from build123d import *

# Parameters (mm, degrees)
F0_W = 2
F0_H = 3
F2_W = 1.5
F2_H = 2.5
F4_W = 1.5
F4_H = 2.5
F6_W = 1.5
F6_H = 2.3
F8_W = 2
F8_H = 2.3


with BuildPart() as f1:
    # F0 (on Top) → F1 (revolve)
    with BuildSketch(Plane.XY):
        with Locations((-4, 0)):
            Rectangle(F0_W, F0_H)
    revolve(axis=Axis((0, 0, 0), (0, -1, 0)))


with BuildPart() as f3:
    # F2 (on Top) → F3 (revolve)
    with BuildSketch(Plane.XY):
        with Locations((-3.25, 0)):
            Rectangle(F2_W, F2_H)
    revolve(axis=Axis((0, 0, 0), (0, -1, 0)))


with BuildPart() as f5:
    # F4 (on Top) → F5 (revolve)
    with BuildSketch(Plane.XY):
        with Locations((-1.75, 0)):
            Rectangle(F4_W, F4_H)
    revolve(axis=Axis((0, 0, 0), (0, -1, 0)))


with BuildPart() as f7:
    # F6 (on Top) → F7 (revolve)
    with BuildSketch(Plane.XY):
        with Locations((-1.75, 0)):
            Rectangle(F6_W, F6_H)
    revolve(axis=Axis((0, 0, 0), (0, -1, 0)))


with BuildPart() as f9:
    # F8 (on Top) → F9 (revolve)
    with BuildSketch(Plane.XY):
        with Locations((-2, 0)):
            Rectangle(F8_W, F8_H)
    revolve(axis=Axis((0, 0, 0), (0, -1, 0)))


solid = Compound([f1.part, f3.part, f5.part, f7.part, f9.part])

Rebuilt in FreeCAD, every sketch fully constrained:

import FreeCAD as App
import Part
import Sketcher

V = App.Vector

doc = App.newDocument("Part")
body = doc.addObject("PartDesign::Body", "Body")

# Sketch on XY plane
sketch1 = body.newObject("Sketcher::SketchObject", "Sketch")
sketch1.AttachmentSupport = (doc.getObject("XY_Plane"), [""])
sketch1.MapMode = "FlatFace"
sketch1.addGeometry(Part.LineSegment(V(-5, 1.5, 0), V(-5, -1.5, 0)), False)
sketch1.addGeometry(Part.LineSegment(V(-5, -1.5, 0), V(-3, -1.5, 0)), False)
sketch1.addGeometry(Part.LineSegment(V(-3, -1.5, 0), V(-3, 1.5, 0)), False)
sketch1.addGeometry(Part.LineSegment(V(-3, 1.5, 0), V(-5, 1.5, 0)), False)
sketch1.addConstraint(Sketcher.Constraint("Coincident", 0, 2, 1, 1))
sketch1.addConstraint(Sketcher.Constraint("Coincident", 1, 2, 2, 1))
sketch1.addConstraint(Sketcher.Constraint("Coincident", 2, 2, 3, 1))
sketch1.addConstraint(Sketcher.Constraint("Coincident", 3, 2, 0, 1))
sketch1.addConstraint(Sketcher.Constraint("Vertical", 0))
sketch1.addConstraint(Sketcher.Constraint("Horizontal", 1))
sketch1.addConstraint(Sketcher.Constraint("Vertical", 2))
sketch1.addConstraint(Sketcher.Constraint("Horizontal", 3))
sketch1.addConstraint(Sketcher.Constraint("DistanceX", 1, 1, 1, 2, 2.0))
sketch1.addConstraint(Sketcher.Constraint("DistanceY", 0, 2, 0, 1, 3.0))
sketch1.addConstraint(Sketcher.Constraint("DistanceX", 0, 2, -1, 1, 5.0))
sketch1.addConstraint(Sketcher.Constraint("DistanceY", 0, 2, -1, 1, 1.5))
revolution = body.newObject("PartDesign::Revolution", "Revolution")
revolution.Profile = sketch1
revolution.ReferenceAxis = (sketch1, ["V_Axis"])
revolution.Angle = 360
body2 = doc.addObject("PartDesign::Body", "Body001")

# Sketch on XY plane
sketch2 = body2.newObject("Sketcher::SketchObject", "Sketch001")
sketch2.AttachmentSupport = (doc.getObject("XY_Plane001"), [""])
sketch2.MapMode = "FlatFace"
sketch2.addGeometry(Part.LineSegment(V(-4, 1.2, 0), V(-4, -1.2, 0)), False)
sketch2.addGeometry(Part.LineSegment(V(-4, -1.2, 0), V(-2.5, -1.2, 0)), False)
sketch2.addGeometry(Part.LineSegment(V(-2.5, -1.2, 0), V(-2.5, 1.2, 0)), False)
sketch2.addGeometry(Part.LineSegment(V(-2.5, 1.2, 0), V(-4, 1.2, 0)), False)
sketch2.addConstraint(Sketcher.Constraint("Coincident", 0, 2, 1, 1))
sketch2.addConstraint(Sketcher.Constraint("Coincident", 1, 2, 2, 1))
sketch2.addConstraint(Sketcher.Constraint("Coincident", 2, 2, 3, 1))
sketch2.addConstraint(Sketcher.Constraint("Coincident", 3, 2, 0, 1))
sketch2.addConstraint(Sketcher.Constraint("Vertical", 0))
sketch2.addConstraint(Sketcher.Constraint("Horizontal", 1))
sketch2.addConstraint(Sketcher.Constraint("Vertical", 2))
sketch2.addConstraint(Sketcher.Constraint("Horizontal", 3))
sketch2.addConstraint(Sketcher.Constraint("DistanceX", 1, 1, 1, 2, 1.5))
sketch2.addConstraint(Sketcher.Constraint("DistanceY", 0, 2, 0, 1, 2.5))
sketch2.addConstraint(Sketcher.Constraint("DistanceX", 0, 2, -1, 1, 4.0))
sketch2.addConstraint(Sketcher.Constraint("DistanceY", 0, 2, -1, 1, 1.25))
revolution2 = body2.newObject("PartDesign::Revolution", "Revolution001")
revolution2.Profile = sketch2
revolution2.ReferenceAxis = (sketch2, ["V_Axis"])
revolution2.Angle = 360
body3 = doc.addObject("PartDesign::Body", "Body002")

# Sketch on XY plane
sketch3 = body3.newObject("Sketcher::SketchObject", "Sketch002")
sketch3.AttachmentSupport = (doc.getObject("XY_Plane002"), [""])
sketch3.MapMode = "FlatFace"
sketch3.addGeometry(Part.LineSegment(V(-2.5, 1.2, 0), V(-2.5, -1.2, 0)), False)
sketch3.addGeometry(Part.LineSegment(V(-2.5, -1.2, 0), V(-1, -1.2, 0)), False)
sketch3.addGeometry(Part.LineSegment(V(-1, -1.2, 0), V(-1, 1.2, 0)), False)
sketch3.addGeometry(Part.LineSegment(V(-1, 1.2, 0), V(-2.5, 1.2, 0)), False)
sketch3.addConstraint(Sketcher.Constraint("Coincident", 0, 2, 1, 1))
sketch3.addConstraint(Sketcher.Constraint("Coincident", 1, 2, 2, 1))
sketch3.addConstraint(Sketcher.Constraint("Coincident", 2, 2, 3, 1))
sketch3.addConstraint(Sketcher.Constraint("Coincident", 3, 2, 0, 1))
sketch3.addConstraint(Sketcher.Constraint("Vertical", 0))
sketch3.addConstraint(Sketcher.Constraint("Horizontal", 1))
sketch3.addConstraint(Sketcher.Constraint("Vertical", 2))
sketch3.addConstraint(Sketcher.Constraint("Horizontal", 3))
sketch3.addConstraint(Sketcher.Constraint("DistanceX", 1, 1, 1, 2, 1.5))
sketch3.addConstraint(Sketcher.Constraint("DistanceY", 0, 2, 0, 1, 2.5))
sketch3.addConstraint(Sketcher.Constraint("DistanceX", 1, 2, -1, 1, 1.0))
sketch3.addConstraint(Sketcher.Constraint("DistanceY", 0, 2, -1, 1, 1.25))
revolution3 = body3.newObject("PartDesign::Revolution", "Revolution002")
revolution3.Profile = sketch3
revolution3.ReferenceAxis = (sketch3, ["V_Axis"])
revolution3.Angle = 360
body4 = doc.addObject("PartDesign::Body", "Body003")

# Sketch on XY plane
sketch4 = body4.newObject("Sketcher::SketchObject", "Sketch003")
sketch4.AttachmentSupport = (doc.getObject("XY_Plane003"), [""])
sketch4.MapMode = "FlatFace"
sketch4.addGeometry(Part.LineSegment(V(-2.5, 1.1, 0), V(-2.5, -1.1, 0)), False)
sketch4.addGeometry(Part.LineSegment(V(-2.5, -1.1, 0), V(-1, -1.1, 0)), False)
sketch4.addGeometry(Part.LineSegment(V(-1, -1.1, 0), V(-1, 1.1, 0)), False)
sketch4.addGeometry(Part.LineSegment(V(-1, 1.1, 0), V(-2.5, 1.1, 0)), False)
sketch4.addConstraint(Sketcher.Constraint("Coincident", 0, 2, 1, 1))
sketch4.addConstraint(Sketcher.Constraint("Coincident", 1, 2, 2, 1))
sketch4.addConstraint(Sketcher.Constraint("Coincident", 2, 2, 3, 1))
sketch4.addConstraint(Sketcher.Constraint("Coincident", 3, 2, 0, 1))
sketch4.addConstraint(Sketcher.Constraint("Vertical", 0))
sketch4.addConstraint(Sketcher.Constraint("Horizontal", 1))
sketch4.addConstraint(Sketcher.Constraint("Vertical", 2))
sketch4.addConstraint(Sketcher.Constraint("Horizontal", 3))
sketch4.addConstraint(Sketcher.Constraint("DistanceX", 1, 1, 1, 2, 1.5))
sketch4.addConstraint(Sketcher.Constraint("DistanceY", 0, 2, 0, 1, 2.3))
sketch4.addConstraint(Sketcher.Constraint("DistanceX", 1, 2, -1, 1, 1.0))
sketch4.addConstraint(Sketcher.Constraint("DistanceY", 0, 2, -1, 1, 1.15))
revolution4 = body4.newObject("PartDesign::Revolution", "Revolution003")
revolution4.Profile = sketch4
revolution4.ReferenceAxis = (sketch4, ["V_Axis"])
revolution4.Angle = 360
body5 = doc.addObject("PartDesign::Body", "Body004")

# Sketch on XY plane
sketch5 = body5.newObject("Sketcher::SketchObject", "Sketch004")
sketch5.AttachmentSupport = (doc.getObject("XY_Plane004"), [""])
sketch5.MapMode = "FlatFace"
sketch5.addGeometry(Part.LineSegment(V(-3, 1.1, 0), V(-3, -1.1, 0)), False)
sketch5.addGeometry(Part.LineSegment(V(-3, -1.1, 0), V(-1, -1.1, 0)), False)
sketch5.addGeometry(Part.LineSegment(V(-1, -1.1, 0), V(-1, 1.1, 0)), False)
sketch5.addGeometry(Part.LineSegment(V(-1, 1.1, 0), V(-3, 1.1, 0)), False)
sketch5.addConstraint(Sketcher.Constraint("Coincident", 0, 2, 1, 1))
sketch5.addConstraint(Sketcher.Constraint("Coincident", 1, 2, 2, 1))
sketch5.addConstraint(Sketcher.Constraint("Coincident", 2, 2, 3, 1))
sketch5.addConstraint(Sketcher.Constraint("Coincident", 3, 2, 0, 1))
sketch5.addConstraint(Sketcher.Constraint("Vertical", 0))
sketch5.addConstraint(Sketcher.Constraint("Horizontal", 1))
sketch5.addConstraint(Sketcher.Constraint("Vertical", 2))
sketch5.addConstraint(Sketcher.Constraint("Horizontal", 3))
sketch5.addConstraint(Sketcher.Constraint("DistanceX", 1, 1, 1, 2, 2.0))
sketch5.addConstraint(Sketcher.Constraint("DistanceY", 0, 2, 0, 1, 2.3))
sketch5.addConstraint(Sketcher.Constraint("DistanceX", 0, 2, -1, 1, 3.0))
sketch5.addConstraint(Sketcher.Constraint("DistanceY", 0, 2, -1, 1, 1.15))
revolution5 = body5.newObject("PartDesign::Revolution", "Revolution004")
revolution5.Profile = sketch5
revolution5.ReferenceAxis = (sketch5, ["V_Axis"])
revolution5.Angle = 360

doc.recompute()
